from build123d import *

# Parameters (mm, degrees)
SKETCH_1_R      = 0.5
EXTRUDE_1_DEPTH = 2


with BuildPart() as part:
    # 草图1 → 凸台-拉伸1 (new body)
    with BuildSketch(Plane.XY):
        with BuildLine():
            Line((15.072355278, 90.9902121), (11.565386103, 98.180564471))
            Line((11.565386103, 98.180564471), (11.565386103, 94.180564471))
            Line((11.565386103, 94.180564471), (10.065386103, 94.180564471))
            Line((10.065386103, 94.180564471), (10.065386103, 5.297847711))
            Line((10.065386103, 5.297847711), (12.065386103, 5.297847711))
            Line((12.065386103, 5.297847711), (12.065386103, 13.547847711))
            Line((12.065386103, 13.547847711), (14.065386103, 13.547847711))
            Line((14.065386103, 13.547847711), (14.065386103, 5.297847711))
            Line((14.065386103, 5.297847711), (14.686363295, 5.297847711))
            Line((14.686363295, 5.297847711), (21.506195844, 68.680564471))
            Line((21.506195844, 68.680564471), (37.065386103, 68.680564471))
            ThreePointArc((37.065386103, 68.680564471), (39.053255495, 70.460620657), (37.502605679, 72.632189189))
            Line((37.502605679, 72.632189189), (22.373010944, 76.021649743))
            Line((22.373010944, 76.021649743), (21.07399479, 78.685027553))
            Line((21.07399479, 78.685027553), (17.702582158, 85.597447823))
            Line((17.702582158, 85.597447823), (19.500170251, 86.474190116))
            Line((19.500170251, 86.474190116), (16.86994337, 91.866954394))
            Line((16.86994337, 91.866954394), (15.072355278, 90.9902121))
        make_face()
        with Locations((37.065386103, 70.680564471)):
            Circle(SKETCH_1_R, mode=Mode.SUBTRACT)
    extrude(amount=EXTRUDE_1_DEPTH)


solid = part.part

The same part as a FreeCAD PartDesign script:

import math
import FreeCAD as App
import Part
import Sketcher
from FreeCAD import Vector
Q = App.Units.Quantity

doc = App.newDocument("Part")
body = doc.addObject("PartDesign::Body", "Body")

# Sketch on XY plane
sketch1 = doc.addObject("Sketcher::SketchObject", "Sketch")
body.addObject(sketch1)
sketch1.AttachmentSupport = (doc.XY_Plane, [""])
sketch1.MapMode = "FlatFace"
sketch1.addGeometry(Part.LineSegment(Vector(15.1, 91, 0), Vector(11.6, 98.2, 0)), False)
sketch1.addGeometry(Part.LineSegment(Vector(11.6, 98.2, 0), Vector(11.6, 94.2, 0)), False)
sketch1.addGeometry(Part.LineSegment(Vector(11.6, 94.2, 0), Vector(10.1, 94.2, 0)), False)
sketch1.addGeometry(Part.LineSegment(Vector(10.1, 94.2, 0), Vector(10.1, 5.3, 0)), False)
sketch1.addGeometry(Part.LineSegment(Vector(10.1, 5.3, 0), Vector(12.1, 5.3, 0)), False)
sketch1.addGeometry(Part.LineSegment(Vector(12.1, 5.3, 0), Vector(12.1, 13.5, 0)), False)
sketch1.addGeometry(Part.LineSegment(Vector(12.1, 13.5, 0), Vector(14.1, 13.5, 0)), False)
sketch1.addGeometry(Part.LineSegment(Vector(14.1, 13.5, 0), Vector(14.1, 5.3, 0)), False)
sketch1.addGeometry(Part.LineSegment(Vector(14.1, 5.3, 0), Vector(14.7, 5.3, 0)), False)
sketch1.addGeometry(Part.LineSegment(Vector(14.7, 5.3, 0), Vector(21.5, 68.7, 0)), False)
sketch1.addGeometry(Part.LineSegment(Vector(21.5, 68.7, 0), Vector(37.1, 68.7, 0)), False)
sketch1.addGeometry(Part.ArcOfCircle(Part.Circle(Vector(37.1, 70.7, 0), Vector(0, 0, 1), 2), math.radians(-90), math.radians(77)), False)
sketch1.addGeometry(Part.LineSegment(Vector(37.5, 72.6, 0), Vector(22.4, 76, 0)), False)
sketch1.addGeometry(Part.LineSegment(Vector(22.4, 76, 0), Vector(21.1, 78.7, 0)), False)
sketch1.addGeometry(Part.LineSegment(Vector(21.1, 78.7, 0), Vector(17.7, 85.6, 0)), False)
sketch1.addGeometry(Part.LineSegment(Vector(17.7, 85.6, 0), Vector(19.5, 86.5, 0)), False)
sketch1.addGeometry(Part.LineSegment(Vector(19.5, 86.5, 0), Vector(16.9, 91.9, 0)), False)
sketch1.addGeometry(Part.LineSegment(Vector(16.9, 91.9, 0), Vector(15.1, 91, 0)), False)
sketch1.addGeometry(Part.Circle(Vector(37.1, 70.7, 0), Vector(0, 0, 1), 0.5), False)
sketch1.addConstraint(Sketcher.Constraint("Coincident", 0, 2, 1, 1))
sketch1.addConstraint(Sketcher.Constraint("Coincident", 1, 2, 2, 1))
sketch1.addConstraint(Sketcher.Constraint("Coincident", 2, 2, 3, 1))
sketch1.addConstraint(Sketcher.Constraint("Coincident", 3, 2, 4, 1))
sketch1.addConstraint(Sketcher.Constraint("Coincident", 4, 2, 5, 1))
sketch1.addConstraint(Sketcher.Constraint("Coincident", 5, 2, 6, 1))
sketch1.addConstraint(Sketcher.Constraint("Coincident", 6, 2, 7, 1))
sketch1.addConstraint(Sketcher.Constraint("Coincident", 7, 2, 8, 1))
sketch1.addConstraint(Sketcher.Constraint("Coincident", 8, 2, 9, 1))
sketch1.addConstraint(Sketcher.Constraint("Coincident", 9, 2, 10, 1))
sketch1.addConstraint(Sketcher.Constraint("Tangent", 10, 2, 11, 1))
sketch1.addConstraint(Sketcher.Constraint("Tangent", 11, 2, 12, 1))
sketch1.addConstraint(Sketcher.Constraint("Coincident", 12, 2, 13, 1))
sketch1.addConstraint(Sketcher.Constraint("Coincident", 13, 2, 14, 1))
sketch1.addConstraint(Sketcher.Constraint("Coincident", 14, 2, 15, 1))
sketch1.addConstraint(Sketcher.Constraint("Coincident", 15, 2, 16, 1))
sketch1.addConstraint(Sketcher.Constraint("Coincident", 16, 2, 17, 1))
sketch1.addConstraint(Sketcher.Constraint("Coincident", 17, 2, 0, 1))
sketch1.addConstraint(Sketcher.Constraint("Vertical", 1))
sketch1.addConstraint(Sketcher.Constraint("Horizontal", 2))
sketch1.addConstraint(Sketcher.Constraint("Vertical", 3))
sketch1.addConstraint(Sketcher.Constraint("Horizontal", 4))
sketch1.addConstraint(Sketcher.Constraint("Vertical", 5))
sketch1.addConstraint(Sketcher.Constraint("Horizontal", 6))
sketch1.addConstraint(Sketcher.Constraint("Vertical", 7))
sketch1.addConstraint(Sketcher.Constraint("Horizontal", 8))
sketch1.addConstraint(Sketcher.Constraint("Horizontal", 10))
sketch1.addConstraint(Sketcher.Constraint("Coincident", 18, 3, 11, 3))
sketch1.addConstraint(Sketcher.Constraint("Parallel", 0, 13))
sketch1.addConstraint(Sketcher.Constraint("Parallel", 13, 14))
sketch1.addConstraint(Sketcher.Constraint("Perpendicular", 14, 15))
sketch1.addConstraint(Sketcher.Constraint("Perpendicular", 15, 16))
sketch1.addConstraint(Sketcher.Constraint("Perpendicular", 16, 17))
sketch1.addConstraint(Sketcher.Constraint("Horizontal", 4, 2, 7, 2))
sketch1.addConstraint(Sketcher.Constraint("Equal", 4, 6))
sketch1.addConstraint(Sketcher.Constraint("Equal", 15, 17))
sketch1.addConstraint(Sketcher.Constraint("Diameter", 18, Q("1 mm")))
sketch1.addConstraint(Sketcher.Constraint("Radius", 11, Q("2 mm")))
sketch1.addConstraint(Sketcher.Constraint("DistanceX", 4, 1, 4, 2, Q("2 mm")))
sketch1.addConstraint(Sketcher.Constraint("DistanceY", 1, 2, 1, 1, Q("4 mm")))
sketch1.addConstraint(Sketcher.Constraint("Angle", 0, Q("116 deg")))
sketch1.addConstraint(Sketcher.Constraint("Distance", 0, Q("8 mm")))
sketch1.addConstraint(Sketcher.Constraint("Distance", 15, Q("2 mm")))
sketch1.addConstraint(Sketcher.Constraint("Distance", 16, Q("6 mm")))
sketch1.addConstraint(Sketcher.Constraint("DistanceX", 2, 2, 2, 1, Q("1.5 mm")))
sketch1.addConstraint(Sketcher.Constraint("DistanceX", 2, 2, 18, 3, Q("27 mm")))
sketch1.addConstraint(Sketcher.Constraint("DistanceY", 5, 1, 5, 2, Q("8.25 mm")))
sketch1.addConstraint(Sketcher.Constraint("DistanceY", 18, 3, 0, 2, Q("27.5 mm")))
sketch1.addConstraint(Sketcher.Constraint("DistanceX", 10, 1, 10, 2, Q("15.55919 mm")))
sketch1.addConstraint(Sketcher.Constraint("DistanceX", 13, 2, 9, 2, Q("0.432201 mm")))
sketch1.addConstraint(Sketcher.Constraint("DistanceY", 12, 2, 14, 2, Q("9.575798 mm")))
sketch1.addConstraint(Sketcher.Constraint("Distance", 9, Q("63.74856 mm")))
sketch1.addConstraint(Sketcher.Constraint("DistanceX", 8, 1, 8, 2, Q("0.620977 mm")))
sketch1.addConstraint(Sketcher.Constraint("DistanceY", -1, 1, 11, 2, Q("72.632189 mm")))
sketch1.addConstraint(Sketcher.Constraint("DistanceX", -1, 1, 12, 2, Q("22.373011 mm")))
pad1 = doc.addObject("PartDesign::Pad", "Pad")
body.addObject(pad1)
pad1.Profile = sketch1
pad1.Length = 2

doc.recompute()
